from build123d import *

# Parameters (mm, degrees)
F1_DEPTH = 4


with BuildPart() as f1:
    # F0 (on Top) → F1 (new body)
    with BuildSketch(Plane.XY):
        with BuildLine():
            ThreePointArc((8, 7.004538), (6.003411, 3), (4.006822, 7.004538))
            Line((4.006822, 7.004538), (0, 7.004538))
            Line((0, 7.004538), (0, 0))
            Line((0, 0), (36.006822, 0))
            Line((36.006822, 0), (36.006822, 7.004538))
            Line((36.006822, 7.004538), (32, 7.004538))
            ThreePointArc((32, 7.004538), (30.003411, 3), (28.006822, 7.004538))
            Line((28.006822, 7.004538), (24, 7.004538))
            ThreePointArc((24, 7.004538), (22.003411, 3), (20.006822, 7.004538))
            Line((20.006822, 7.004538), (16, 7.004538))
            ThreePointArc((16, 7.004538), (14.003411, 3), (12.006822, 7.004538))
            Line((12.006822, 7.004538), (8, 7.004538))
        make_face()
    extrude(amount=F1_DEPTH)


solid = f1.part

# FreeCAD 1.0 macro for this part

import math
import FreeCAD as App
import Part
import Sketcher

V = App.Vector

doc = App.newDocument("Part")
body = doc.addObject("PartDesign::Body", "Body")

# Sketch on XY plane
sketch1 = body.newObject("Sketcher::SketchObject", "Sketch")
sketch1.AttachmentSupport = (doc.getObject("XY_Plane"), [""])
sketch1.MapMode = "FlatFace"
sketch1.addGeometry([
    Part.ArcOfCircle(Part.Circle(V(6, 5.5, 0), V(0, 0, 1), 2.5), math.radians(143), math.radians(397)),  # 0
    Part.LineSegment(V(4, 7, 0), V(0, 7, 0)),  # 1
    Part.LineSegment(V(0, 7, 0), V(0, 0, 0)),  # 2
    Part.LineSegment(V(0, 0, 0), V(36, 0, 0)),  # 3
    Part.LineSegment(V(36, 0, 0), V(36, 7, 0)),  # 4
    Part.LineSegment(V(36, 7, 0), V(32, 7, 0)),  # 5
    Part.ArcOfCircle(Part.Circle(V(30, 5.5, 0), V(0, 0, 1), 2.5), math.radians(143), math.radians(397)),  # 6
    Part.LineSegment(V(28, 7, 0), V(24, 7, 0)),  # 7
    Part.ArcOfCircle(Part.Circle(V(22, 5.5, 0), V(0, 0, 1), 2.5), math.radians(143), math.radians(397)),  # 8
    Part.LineSegment(V(20, 7, 0), V(16, 7, 0)),  # 9
    Part.ArcOfCircle(Part.Circle(V(14, 5.5, 0), V(0, 0, 1), 2.5), math.radians(143), math.radians(397)),  # 10
    Part.LineSegment(V(12, 7, 0), V(8, 7, 0)),  # 11
], False)
sketch1.addConstraint([
    Sketcher.Constraint("Coincident", 0, 1, 1, 1),
    Sketcher.Constraint("Coincident", 1, 2, 2, 1),
    Sketcher.Constraint("Coincident", 2, 2, 3, 1),
    Sketcher.Constraint("Coincident", 3, 2, 4, 1),
    Sketcher.Constraint("Coincident", 4, 2, 5, 1),
    Sketcher.Constraint("Coincident", 5, 2, 6, 2),
    Sketcher.Constraint("Coincident", 6, 1, 7, 1),
    Sketcher.Constraint("Coincident", 7, 2, 8, 2),
    Sketcher.Constraint("Coincident", 8, 1, 9, 1),
    Sketcher.Constraint("Coincident", 9, 2, 10, 2),
    Sketcher.Constraint("Coincident", 10, 1, 11, 1),
    Sketcher.Constraint("Coincident", 11, 2, 0, 2),
    Sketcher.Constraint("Horizontal", 1),
    Sketcher.Constraint("Vertical", 2),
    Sketcher.Constraint("Horizontal", 3),
    Sketcher.Constraint("Vertical", 4),
    Sketcher.Constraint("Horizontal", 5),
    Sketcher.Constraint("Horizontal", 7),
    Sketcher.Constraint("Horizontal", 9),
    Sketcher.Constraint("Horizontal", 11),
    Sketcher.Constraint("Coincident", 2, 2, -1, 1),
    Sketcher.Constraint("Equal", 0, 6),
    Sketcher.Constraint("Equal", 6, 8),
    Sketcher.Constraint("Equal", 8, 10),
    Sketcher.Constraint("Horizontal", 0, 3, 6, 3),
    Sketcher.Constraint("Horizontal", 6, 3, 8, 3),
    Sketcher.Constraint("Horizontal", 8, 3, 10, 3),
    Sketcher.Constraint("Horizontal", 1, 2, 4, 2),
    Sketcher.Constraint("Horizontal", 5, 2, 6, 1),
    Sketcher.Constraint("Horizontal", 7, 2, 8, 1),
    Sketcher.Constraint("Horizontal", 9, 2, 10, 1),
    Sketcher.Constraint("Equal", 1, 5),
    Sketcher.Constraint("Equal", 5, 7),
    Sketcher.Constraint("Equal", 7, 9),
    Sketcher.Constraint("Equal", 9, 11),
    Sketcher.Constraint("Radius", 0, 2.5),
    Sketcher.Constraint("DistanceX", -1, 1, 5, 2, 32.0),
    Sketcher.Constraint("DistanceY", -1, 1, 0, 3, 5.5),
    Sketcher.Constraint("DistanceX", 1, 2, 1, 1, 4.006822),
])
pad1 = body.newObject("PartDesign::Pad", "Pad")
pad1.Profile = sketch1
pad1.Length = 4

doc.recompute()
